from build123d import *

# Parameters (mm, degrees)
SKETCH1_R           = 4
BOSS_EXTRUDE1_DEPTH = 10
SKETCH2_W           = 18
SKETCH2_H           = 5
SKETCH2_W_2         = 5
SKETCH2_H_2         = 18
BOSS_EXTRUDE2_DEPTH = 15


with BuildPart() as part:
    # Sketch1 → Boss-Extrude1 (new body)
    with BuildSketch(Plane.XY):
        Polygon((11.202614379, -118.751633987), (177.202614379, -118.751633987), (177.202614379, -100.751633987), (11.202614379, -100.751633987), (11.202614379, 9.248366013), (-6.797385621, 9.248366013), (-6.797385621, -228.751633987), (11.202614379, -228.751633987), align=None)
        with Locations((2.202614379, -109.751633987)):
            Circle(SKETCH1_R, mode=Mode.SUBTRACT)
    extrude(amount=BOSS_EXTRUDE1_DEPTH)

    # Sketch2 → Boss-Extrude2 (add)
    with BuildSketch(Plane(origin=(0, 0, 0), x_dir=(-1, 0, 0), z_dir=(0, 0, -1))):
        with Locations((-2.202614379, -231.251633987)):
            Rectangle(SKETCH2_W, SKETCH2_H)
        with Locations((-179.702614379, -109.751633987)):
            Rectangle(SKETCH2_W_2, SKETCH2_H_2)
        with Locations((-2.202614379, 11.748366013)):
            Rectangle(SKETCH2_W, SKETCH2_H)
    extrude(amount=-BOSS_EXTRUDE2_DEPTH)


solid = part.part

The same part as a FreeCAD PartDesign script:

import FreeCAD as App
import Part
import Sketcher

V = App.Vector
Q = App.Units.Quantity


def add_polygon(sketch, points):
    """Adds a closed chain of lines whose ends are joined by coincident constraints."""
    first, n = sketch.GeometryCount, len(points)
    for a, b in zip(points, points[1:] + points[:1]):
        sketch.addGeometry(Part.LineSegment(App.Vector(*a, 0), App.Vector(*b, 0)), False)
    for i in range(n):
        sketch.addConstraint(Sketcher.Constraint("Coincident", first + i, 2, first + (i + 1) % n, 1))

doc = App.newDocument("Part")
params = doc.addObject("Spreadsheet::Sheet", "Params")
for row, (alias, value) in enumerate([
    ("sketch1_diameter", "8 mm"),
    ("sketch1_width", "166 mm"),
    ("sketch1_width2", "18 mm"),
    ("sketch1_height", "110 mm"),
    ("pad1_length", "10 mm"),
    ("sketch2_width", "18 mm"),
    ("sketch2_width2", "5 mm"),
    ("pad2_length", "15 mm"),
], start=1):
    params.set(f"A{row}", alias)
    params.set(f"B{row}", "=" + value)
    params.setAlias(f"B{row}", alias)

body = doc.addObject("PartDesign::Body", "Body")

# Sketch on XY plane
sketch1 = body.newObject("Sketcher::SketchObject", "Sketch")
sketch1.AttachmentSupport = (doc.getObject("XY_Plane"), [""])
sketch1.MapMode = "FlatFace"
add_polygon(sketch1, [(11.2, -118.8), (177.2, -118.8), (177.2, -100.8), (11.2, -100.8), (11.2, 9.2), (-6.8, 9.2), (-6.8, -228.8), (11.2, -228.8)])  # lines 0-7
sketch1.addGeometry(Part.Circle(V(2.2, -109.8, 0), V(0, 0, 1), 4), False)  # 8
sketch1.addConstraint(Sketcher.Constraint("Horizontal", 0))
sketch1.addConstraint(Sketcher.Constraint("Vertical", 1))
sketch1.addConstraint(Sketcher.Constraint("Horizontal", 2))
sketch1.addConstraint(Sketcher.Constraint("Vertical", 3))
sketch1.addConstraint(Sketcher.Constraint("Horizontal", 4))
sketch1.addConstraint(Sketcher.Constraint("Vertical", 5))
sketch1.addConstraint(Sketcher.Constraint("Horizontal", 6))
sketch1.addConstraint(Sketcher.Constraint("Vertical", 7))
sketch1.addConstraint(Sketcher.Constraint("Vertical", 3, 2, 6, 2))
sketch1.addConstraint(Sketcher.Constraint("Equal", 6, 1))
sketch1.addConstraint(Sketcher.Constraint("Equal", 3, 7))
sketch1.addConstraint(Sketcher.Constraint("Diameter", 8, Q("8 mm")))
sketch1.addConstraint(Sketcher.Constraint("DistanceX", 0, 1, 0, 2, Q("166 mm")))
sketch1.addConstraint(Sketcher.Constraint("DistanceX", 4, 2, 4, 1, Q("18 mm")))
sketch1.addConstraint(Sketcher.Constraint("DistanceY", 3, 1, 3, 2, Q("110 mm")))
sketch1.addConstraint(Sketcher.Constraint("DistanceX", 8, 3, 0, 2, Q("175 mm")))
sketch1.addConstraint(Sketcher.Constraint("DistanceY", 0, 2, 8, 3, Q("9 mm")))
sketch1.addConstraint(Sketcher.Constraint("DistanceX", -1, 1, 8, 3, Q("2.202614 mm")))
sketch1.addConstraint(Sketcher.Constraint("DistanceY", 8, 3, -1, 1, Q("109.751634 mm")))
sketch1.setExpression("Constraints[19]", "Params.sketch1_diameter")
sketch1.setExpression("Constraints[20]", "Params.sketch1_width")
sketch1.setExpression("Constraints[21]", "Params.sketch1_width2")
sketch1.setExpression("Constraints[22]", "Params.sketch1_height")
pad1 = body.newObject("PartDesign::Pad", "Pad")
pad1.Profile = sketch1
pad1.setExpression("Length", "Params.pad1_length")

# Sketch on XY plane
sketch2 = body.newObject("Sketcher::SketchObject", "Sketch001")
sketch2.AttachmentSupport = (doc.getObject("XY_Plane"), [""])
sketch2.MapMode = "FlatFace"
add_polygon(sketch2, [(11, -229), (11, -234), (-7, -234), (-7, -229)])  # lines 0-3
add_polygon(sketch2, [(182, -101), (182, -119), (177, -119), (177, -101)])  # lines 4-7
add_polygon(sketch2, [(11, 14), (11, 9), (-7, 9), (-7, 14)])  # lines 8-11
sketch2.addConstraint(Sketcher.Constraint("Vertical", 0))
sketch2.addConstraint(Sketcher.Constraint("Horizontal", 1))
sketch2.addConstraint(Sketcher.Constraint("Vertical", 2))
sketch2.addConstraint(Sketcher.Constraint("Horizontal", 3))
sketch2.addConstraint(Sketcher.Constraint("Vertical", 4))
sketch2.addConstraint(Sketcher.Constraint("Horizontal", 5))
sketch2.addConstraint(Sketcher.Constraint("Vertical", 6))
sketch2.addConstraint(Sketcher.Constraint("Horizontal", 7))
sketch2.addConstraint(Sketcher.Constraint("Vertical", 8))
sketch2.addConstraint(Sketcher.Constraint("Horizontal", 9))
sketch2.addConstraint(Sketcher.Constraint("Vertical", 10))
sketch2.addConstraint(Sketcher.Constraint("Horizontal", 11))
sketch2.addConstraint(Sketcher.Constraint("Vertical", 3, 2, 8, 2))
sketch2.addConstraint(Sketcher.Constraint("Vertical", 2, 2, 9, 2))
sketch2.addConstraint(Sketcher.Constraint("Equal", 7, 0))
sketch2.addConstraint(Sketcher.Constraint("Equal", 11, 4))
sketch2.addConstraint(Sketcher.Constraint("Equal", 2, 8))
sketch2.addConstraint(Sketcher.Constraint("DistanceX", 1, 2, 1, 1, Q("18 mm")))
sketch2.addConstraint(Sketcher.Constraint("DistanceX", 5, 2, 5, 1, Q("5 mm")))
sketch2.addConstraint(Sketcher.Constraint("DistanceX", 3, 2, 4, 2, Q("171 mm")))
sketch2.addConstraint(Sketcher.Constraint("DistanceY", 3, 2, 4, 2, Q("110 mm")))
sketch2.addConstraint(Sketcher.Constraint("DistanceY", 6, 2, 8, 2, Q("110 mm")))
sketch2.addConstraint(Sketcher.Constraint("DistanceX", -1, 1, 0, 2, Q("11.202614 mm")))
sketch2.addConstraint(Sketcher.Constraint("DistanceY", 0, 2, -1, 1, Q("233.751634 mm")))
sketch2.setExpression("Constraints[29]", "Params.sketch2_width")
sketch2.setExpression("Constraints[30]", "Params.sketch2_width2")
pad2 = body.newObject("PartDesign::Pad", "Pad001")
pad2.Profile = sketch2
pad2.setExpression("Length", "Params.pad2_length")

doc.recompute()
